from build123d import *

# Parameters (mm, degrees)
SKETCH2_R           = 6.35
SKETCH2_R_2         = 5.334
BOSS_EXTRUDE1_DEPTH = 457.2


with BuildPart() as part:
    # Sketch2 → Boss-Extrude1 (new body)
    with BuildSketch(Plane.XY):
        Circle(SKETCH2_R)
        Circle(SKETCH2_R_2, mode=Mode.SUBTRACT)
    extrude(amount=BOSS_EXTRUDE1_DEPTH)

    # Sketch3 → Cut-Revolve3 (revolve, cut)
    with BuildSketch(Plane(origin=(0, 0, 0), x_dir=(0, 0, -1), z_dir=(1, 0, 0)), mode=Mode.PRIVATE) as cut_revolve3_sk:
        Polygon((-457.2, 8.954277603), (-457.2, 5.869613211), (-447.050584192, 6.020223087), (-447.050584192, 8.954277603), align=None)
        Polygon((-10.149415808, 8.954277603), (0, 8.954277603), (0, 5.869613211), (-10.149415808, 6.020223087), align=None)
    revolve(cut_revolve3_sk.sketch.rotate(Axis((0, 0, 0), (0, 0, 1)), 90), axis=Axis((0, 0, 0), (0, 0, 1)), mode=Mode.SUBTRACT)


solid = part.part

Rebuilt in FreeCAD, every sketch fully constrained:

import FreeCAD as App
import Part
import Sketcher
Q = App.Units.Quantity


def add_polygon(sketch, points):
    """Adds a closed chain of lines whose ends are joined by coincident constraints."""
    first, n = sketch.GeometryCount, len(points)
    for a, b in zip(points, points[1:] + points[:1]):
        sketch.addGeometry(Part.LineSegment(App.Vector(*a, 0), App.Vector(*b, 0)), False)
    for i in range(n):
        sketch.addConstraint(Sketcher.Constraint("Coincident", first + i, 2, first + (i + 1) % n, 1))

doc = App.newDocument("Part")
body = doc.addObject("PartDesign::Body", "Body")

# Sketch on XY plane
sketch1 = body.newObject("Sketcher::SketchObject", "Sketch")
sketch1.AttachmentSupport = (doc.getObject("XY_Plane"), [""])
sketch1.MapMode = "FlatFace"
sketch1.addGeometry(Part.Circle(App.Vector(0, 0, 0), App.Vector(0, 0, 1), 6), False)
sketch1.addGeometry(Part.Circle(App.Vector(0, 0, 0), App.Vector(0, 0, 1), 5), False)
sketch1.addConstraint(Sketcher.Constraint("Coincident", 0, 3, -1, 1))
sketch1.addConstraint(Sketcher.Constraint("Coincident", 1, 3, -1, 1))
sketch1.addConstraint(Sketcher.Constraint("Diameter", 0, Q("0.5 in")))
sketch1.addConstraint(Sketcher.Constraint("Diameter", 1, Q("0.42 in")))
pad1 = body.newObject("PartDesign::Pad", "Pad")
pad1.Profile = sketch1
pad1.Length = Q("18 in")

# Sketch on YZ plane
sketch2 = body.newObject("Sketcher::SketchObject", "Sketch001")
sketch2.AttachmentSupport = (doc.getObject("YZ_Plane"), [""])
sketch2.MapMode = "FlatFace"
add_polygon(sketch2, [(9, 457.2), (5.9, 457.2), (6, 447.1), (9, 447.1)])  # lines 0-3
add_polygon(sketch2, [(9, 0), (9, 10.1), (6, 10.1), (5.9, 0)])  # lines 4-7
sketch2.addConstraint(Sketcher.Constraint("Horizontal", 0))
sketch2.addConstraint(Sketcher.Constraint("Horizontal", 2))
sketch2.addConstraint(Sketcher.Constraint("Vertical", 3))
sketch2.addConstraint(Sketcher.Constraint("Vertical", 4))
sketch2.addConstraint(Sketcher.Constraint("Horizontal", 5))
sketch2.addConstraint(Sketcher.Constraint("Horizontal", 7))
sketch2.addConstraint(Sketcher.Constraint("PointOnObject", 6, 2, -1))
sketch2.addConstraint(Sketcher.Constraint("Vertical", 3, 2, 4, 2))
sketch2.addConstraint(Sketcher.Constraint("Vertical", 1, 2, 5, 2))
sketch2.addConstraint(Sketcher.Constraint("Vertical", 0, 2, 6, 2))
sketch2.addConstraint(Sketcher.Constraint("Equal", 3, 4))
sketch2.addConstraint(Sketcher.Constraint("DistanceY", -1, 1, 0, 2, Q("18 in")))
sketch2.addConstraint(Sketcher.Constraint("DistanceX", 0, 2, 0, 1, 3.084664))
sketch2.addConstraint(Sketcher.Constraint("DistanceX", 2, 1, 2, 2, 2.934055))
sketch2.addConstraint(Sketcher.Constraint("DistanceY", 3, 1, 3, 2, 10.149416))
sketch2.addConstraint(Sketcher.Constraint("DistanceX", -1, 1, 0, 2, 5.869613))
groove = body.newObject("PartDesign::Groove", "Groove")
groove.Profile = sketch2
groove.ReferenceAxis = (sketch2, ["V_Axis"])
groove.Angle = 360

doc.recompute()
